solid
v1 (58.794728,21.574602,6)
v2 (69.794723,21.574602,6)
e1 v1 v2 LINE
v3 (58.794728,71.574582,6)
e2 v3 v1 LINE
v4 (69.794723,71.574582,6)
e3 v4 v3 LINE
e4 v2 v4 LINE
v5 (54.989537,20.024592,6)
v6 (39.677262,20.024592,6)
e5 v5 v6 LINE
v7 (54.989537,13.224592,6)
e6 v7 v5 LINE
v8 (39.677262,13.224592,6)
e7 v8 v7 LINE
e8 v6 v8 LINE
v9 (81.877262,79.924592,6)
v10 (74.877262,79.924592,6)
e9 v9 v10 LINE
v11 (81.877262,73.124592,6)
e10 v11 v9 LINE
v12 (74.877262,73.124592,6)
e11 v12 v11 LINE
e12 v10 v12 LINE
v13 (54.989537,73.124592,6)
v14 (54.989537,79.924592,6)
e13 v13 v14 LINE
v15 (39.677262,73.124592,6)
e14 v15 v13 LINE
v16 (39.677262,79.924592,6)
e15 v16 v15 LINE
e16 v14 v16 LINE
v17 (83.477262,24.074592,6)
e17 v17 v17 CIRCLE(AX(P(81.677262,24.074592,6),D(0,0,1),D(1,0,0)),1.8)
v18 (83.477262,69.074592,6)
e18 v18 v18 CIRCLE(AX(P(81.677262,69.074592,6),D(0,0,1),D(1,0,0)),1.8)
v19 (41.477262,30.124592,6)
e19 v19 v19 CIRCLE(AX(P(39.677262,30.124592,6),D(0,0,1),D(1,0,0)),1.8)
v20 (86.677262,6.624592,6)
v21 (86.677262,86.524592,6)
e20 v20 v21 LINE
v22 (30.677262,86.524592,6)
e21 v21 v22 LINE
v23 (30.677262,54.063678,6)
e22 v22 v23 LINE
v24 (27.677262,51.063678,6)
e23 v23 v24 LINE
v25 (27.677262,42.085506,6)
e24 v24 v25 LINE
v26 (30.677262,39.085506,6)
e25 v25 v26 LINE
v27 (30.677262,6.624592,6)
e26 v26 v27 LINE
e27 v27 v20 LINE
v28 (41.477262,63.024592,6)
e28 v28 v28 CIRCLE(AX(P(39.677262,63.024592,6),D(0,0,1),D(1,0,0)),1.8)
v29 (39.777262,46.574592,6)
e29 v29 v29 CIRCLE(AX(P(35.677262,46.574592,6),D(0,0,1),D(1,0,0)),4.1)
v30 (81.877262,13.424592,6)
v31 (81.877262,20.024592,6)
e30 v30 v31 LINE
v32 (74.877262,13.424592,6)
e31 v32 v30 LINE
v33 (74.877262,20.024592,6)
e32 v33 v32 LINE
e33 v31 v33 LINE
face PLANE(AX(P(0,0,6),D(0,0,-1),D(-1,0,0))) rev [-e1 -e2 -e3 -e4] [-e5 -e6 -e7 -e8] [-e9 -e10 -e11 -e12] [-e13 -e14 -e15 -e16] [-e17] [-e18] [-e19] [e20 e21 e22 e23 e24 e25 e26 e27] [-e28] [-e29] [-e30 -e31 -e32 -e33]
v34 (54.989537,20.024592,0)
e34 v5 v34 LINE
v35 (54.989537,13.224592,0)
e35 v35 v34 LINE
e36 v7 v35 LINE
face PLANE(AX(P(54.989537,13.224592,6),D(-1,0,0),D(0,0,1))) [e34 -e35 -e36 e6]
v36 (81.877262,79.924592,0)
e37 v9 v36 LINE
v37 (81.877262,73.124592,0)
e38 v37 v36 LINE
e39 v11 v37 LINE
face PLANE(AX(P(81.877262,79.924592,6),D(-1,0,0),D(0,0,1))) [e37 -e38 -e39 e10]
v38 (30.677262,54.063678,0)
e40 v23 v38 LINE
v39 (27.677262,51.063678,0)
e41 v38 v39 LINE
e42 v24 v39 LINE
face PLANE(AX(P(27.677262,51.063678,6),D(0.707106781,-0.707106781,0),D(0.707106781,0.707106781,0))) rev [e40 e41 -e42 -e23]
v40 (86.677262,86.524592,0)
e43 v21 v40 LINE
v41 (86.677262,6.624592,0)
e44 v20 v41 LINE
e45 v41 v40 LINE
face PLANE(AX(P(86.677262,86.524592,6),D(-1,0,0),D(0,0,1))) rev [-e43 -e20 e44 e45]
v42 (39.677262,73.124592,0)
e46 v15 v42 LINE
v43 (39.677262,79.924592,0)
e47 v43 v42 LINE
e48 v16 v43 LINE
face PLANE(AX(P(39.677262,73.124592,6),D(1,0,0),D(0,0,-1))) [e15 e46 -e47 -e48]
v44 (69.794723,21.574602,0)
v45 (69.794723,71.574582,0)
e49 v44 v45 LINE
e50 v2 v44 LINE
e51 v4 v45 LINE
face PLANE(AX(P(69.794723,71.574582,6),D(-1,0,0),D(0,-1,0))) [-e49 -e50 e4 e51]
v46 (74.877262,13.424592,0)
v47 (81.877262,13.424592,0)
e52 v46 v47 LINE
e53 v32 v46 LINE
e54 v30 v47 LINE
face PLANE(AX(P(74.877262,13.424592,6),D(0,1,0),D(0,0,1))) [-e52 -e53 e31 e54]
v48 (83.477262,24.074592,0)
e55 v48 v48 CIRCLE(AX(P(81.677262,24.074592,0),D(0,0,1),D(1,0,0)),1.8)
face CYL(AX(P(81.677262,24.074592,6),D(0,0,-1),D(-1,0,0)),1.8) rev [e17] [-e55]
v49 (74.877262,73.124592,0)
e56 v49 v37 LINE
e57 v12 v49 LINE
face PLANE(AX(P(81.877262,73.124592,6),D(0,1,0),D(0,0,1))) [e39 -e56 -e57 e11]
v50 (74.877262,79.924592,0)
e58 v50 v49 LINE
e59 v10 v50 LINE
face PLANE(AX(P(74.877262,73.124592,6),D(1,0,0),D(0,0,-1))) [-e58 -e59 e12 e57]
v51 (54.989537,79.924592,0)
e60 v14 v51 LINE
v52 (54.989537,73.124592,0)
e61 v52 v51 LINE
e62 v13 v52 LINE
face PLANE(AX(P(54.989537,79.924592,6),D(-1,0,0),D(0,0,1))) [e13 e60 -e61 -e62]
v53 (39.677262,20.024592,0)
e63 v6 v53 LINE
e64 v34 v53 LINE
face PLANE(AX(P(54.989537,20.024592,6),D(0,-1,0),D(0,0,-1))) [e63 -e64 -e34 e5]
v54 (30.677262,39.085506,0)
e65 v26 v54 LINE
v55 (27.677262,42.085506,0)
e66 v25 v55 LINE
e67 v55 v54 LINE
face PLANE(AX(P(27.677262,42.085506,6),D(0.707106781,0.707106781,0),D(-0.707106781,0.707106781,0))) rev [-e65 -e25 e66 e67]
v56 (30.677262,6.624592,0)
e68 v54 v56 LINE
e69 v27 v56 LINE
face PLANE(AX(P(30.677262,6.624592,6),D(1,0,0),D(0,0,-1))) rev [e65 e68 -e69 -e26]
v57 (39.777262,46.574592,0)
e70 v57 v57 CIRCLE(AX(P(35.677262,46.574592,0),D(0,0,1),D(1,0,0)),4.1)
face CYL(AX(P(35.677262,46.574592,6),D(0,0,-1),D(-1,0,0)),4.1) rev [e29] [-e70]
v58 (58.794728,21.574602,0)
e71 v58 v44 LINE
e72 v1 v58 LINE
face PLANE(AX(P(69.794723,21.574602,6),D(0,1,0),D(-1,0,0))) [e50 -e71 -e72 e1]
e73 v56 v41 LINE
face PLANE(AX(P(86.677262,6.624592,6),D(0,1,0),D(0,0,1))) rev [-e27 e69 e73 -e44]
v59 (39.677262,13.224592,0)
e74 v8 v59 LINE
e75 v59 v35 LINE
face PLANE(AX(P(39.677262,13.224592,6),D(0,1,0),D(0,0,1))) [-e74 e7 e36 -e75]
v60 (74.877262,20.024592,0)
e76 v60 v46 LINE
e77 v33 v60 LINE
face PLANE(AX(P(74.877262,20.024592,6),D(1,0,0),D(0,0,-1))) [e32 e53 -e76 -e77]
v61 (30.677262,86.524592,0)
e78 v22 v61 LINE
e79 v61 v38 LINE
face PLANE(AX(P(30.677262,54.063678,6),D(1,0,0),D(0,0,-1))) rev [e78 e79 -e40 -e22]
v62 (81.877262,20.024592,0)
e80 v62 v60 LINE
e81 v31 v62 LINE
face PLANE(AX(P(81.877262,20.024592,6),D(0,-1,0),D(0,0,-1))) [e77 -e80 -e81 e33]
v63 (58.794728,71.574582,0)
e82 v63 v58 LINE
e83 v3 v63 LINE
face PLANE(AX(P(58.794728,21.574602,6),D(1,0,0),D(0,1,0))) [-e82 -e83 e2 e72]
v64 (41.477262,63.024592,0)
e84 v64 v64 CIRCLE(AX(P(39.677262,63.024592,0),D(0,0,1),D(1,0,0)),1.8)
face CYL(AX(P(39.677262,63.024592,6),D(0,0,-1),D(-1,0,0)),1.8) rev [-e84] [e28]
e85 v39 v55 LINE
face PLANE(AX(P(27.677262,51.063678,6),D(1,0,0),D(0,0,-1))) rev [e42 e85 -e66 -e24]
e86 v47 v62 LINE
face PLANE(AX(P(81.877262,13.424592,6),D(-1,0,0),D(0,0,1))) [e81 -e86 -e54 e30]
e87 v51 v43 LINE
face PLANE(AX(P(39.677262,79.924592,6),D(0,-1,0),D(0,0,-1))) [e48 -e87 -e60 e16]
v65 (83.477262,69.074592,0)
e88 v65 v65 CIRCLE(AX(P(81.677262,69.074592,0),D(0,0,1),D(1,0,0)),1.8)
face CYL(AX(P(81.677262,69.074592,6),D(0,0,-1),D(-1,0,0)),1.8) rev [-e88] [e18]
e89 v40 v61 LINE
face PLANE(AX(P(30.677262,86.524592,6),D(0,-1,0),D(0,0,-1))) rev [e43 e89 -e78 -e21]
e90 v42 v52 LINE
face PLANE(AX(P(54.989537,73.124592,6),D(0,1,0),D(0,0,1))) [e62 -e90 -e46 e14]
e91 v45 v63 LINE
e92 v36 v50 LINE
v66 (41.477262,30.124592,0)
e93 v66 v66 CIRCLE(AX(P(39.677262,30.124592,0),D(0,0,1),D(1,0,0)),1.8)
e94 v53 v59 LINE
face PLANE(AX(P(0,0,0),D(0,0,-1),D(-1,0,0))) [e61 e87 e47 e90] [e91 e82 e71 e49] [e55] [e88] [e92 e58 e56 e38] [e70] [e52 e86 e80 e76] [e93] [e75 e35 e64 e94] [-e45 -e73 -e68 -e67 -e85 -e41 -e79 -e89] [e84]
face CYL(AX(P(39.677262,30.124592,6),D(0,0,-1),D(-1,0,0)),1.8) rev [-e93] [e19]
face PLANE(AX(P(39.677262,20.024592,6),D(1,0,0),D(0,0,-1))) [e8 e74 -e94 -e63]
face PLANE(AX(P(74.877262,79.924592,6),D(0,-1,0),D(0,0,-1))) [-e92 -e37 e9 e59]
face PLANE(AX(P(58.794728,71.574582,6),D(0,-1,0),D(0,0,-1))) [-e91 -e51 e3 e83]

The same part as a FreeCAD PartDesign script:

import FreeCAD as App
import Part
import Sketcher

V = App.Vector

doc = App.newDocument("Part")
body = doc.addObject("PartDesign::Body", "Body")

sketch1 = doc.addObject("Sketcher::SketchObject", "Sketch")
body.addObject(sketch1)
sketch1.AttachmentSupport = (doc.XY_Plane, [""])
sketch1.MapMode = "FlatFace"
sketch1.addGeometry([
    Part.LineSegment(V(30.677262, 39.085506, 0), V(30.677262, 6.624592, 0)),
    Part.LineSegment(V(30.677262, 6.624592, 0), V(86.677262, 6.624592, 0)),
    Part.LineSegment(V(86.677262, 6.624592, 0), V(86.677262, 86.524592, 0)),
    Part.LineSegment(V(86.677262, 86.524592, 0), V(30.677262, 86.524592, 0)),
    Part.LineSegment(V(30.677262, 86.524592, 0), V(30.677262, 54.063678, 0)),
    Part.LineSegment(V(30.677262, 54.063678, 0), V(27.677262, 51.063678, 0)),
    Part.LineSegment(V(27.677262, 51.063678, 0), V(27.677262, 42.085506, 0)),
    Part.LineSegment(V(27.677262, 42.085506, 0), V(30.677262, 39.085506, 0)),
    Part.LineSegment(V(74.877262, 13.424592, 0), V(74.877262, 20.024592, 0)),
    Part.LineSegment(V(74.877262, 20.024592, 0), V(81.877262, 20.024592, 0)),
    Part.LineSegment(V(81.877262, 20.024592, 0), V(81.877262, 13.424592, 0)),
    Part.LineSegment(V(81.877262, 13.424592, 0), V(74.877262, 13.424592, 0)),
    Part.Circle(V(81.677262, 24.074592, 0), V(0, 0, 1), 1.8),
    Part.LineSegment(V(39.677262, 13.224592, 0), V(39.677262, 20.024592, 0)),
    Part.LineSegment(V(39.677262, 20.024592, 0), V(54.989537, 20.024592, 0)),
    Part.LineSegment(V(54.989537, 20.024592, 0), V(54.989537, 13.224592, 0)),
    Part.LineSegment(V(54.989537, 13.224592, 0), V(39.677262, 13.224592, 0)),
    Part.Circle(V(39.677262, 30.124592, 0), V(0, 0, 1), 1.8),
    Part.LineSegment(V(58.794728, 21.574602, 0), V(58.794728, 71.574582, 0)),
    Part.LineSegment(V(58.794728, 71.574582, 0), V(69.794723, 71.574582, 0)),
    Part.LineSegment(V(69.794723, 71.574582, 0), V(69.794723, 21.574602, 0)),
    Part.LineSegment(V(69.794723, 21.574602, 0), V(58.794728, 21.574602, 0)),
    Part.Circle(V(81.677262, 69.074592, 0), V(0, 0, 1), 1.8),
    Part.LineSegment(V(74.877262, 73.124592, 0), V(74.877262, 79.924592, 0)),
    Part.LineSegment(V(74.877262, 79.924592, 0), V(81.877262, 79.924592, 0)),
    Part.LineSegment(V(81.877262, 79.924592, 0), V(81.877262, 73.124592, 0)),
    Part.LineSegment(V(81.877262, 73.124592, 0), V(74.877262, 73.124592, 0)),
    Part.Circle(V(35.677262, 46.574592, 0), V(0, 0, 1), 4.1),
    Part.Circle(V(39.677262, 63.024592, 0), V(0, 0, 1), 1.8),
    Part.LineSegment(V(39.677262, 73.124592, 0), V(39.677262, 79.924592, 0)),
    Part.LineSegment(V(39.677262, 79.924592, 0), V(54.989537, 79.924592, 0)),
    Part.LineSegment(V(54.989537, 79.924592, 0), V(54.989537, 73.124592, 0)),
    Part.LineSegment(V(54.989537, 73.124592, 0), V(39.677262, 73.124592, 0)),
], False)
sketch1.addConstraint([
    Sketcher.Constraint("Coincident", 0, 2, 1, 1),
    Sketcher.Constraint("Coincident", 1, 2, 2, 1),
    Sketcher.Constraint("Coincident", 2, 2, 3, 1),
    Sketcher.Constraint("Coincident", 3, 2, 4, 1),
    Sketcher.Constraint("Coincident", 4, 2, 5, 1),
    Sketcher.Constraint("Coincident", 5, 2, 6, 1),
    Sketcher.Constraint("Coincident", 6, 2, 7, 1),
    Sketcher.Constraint("Coincident", 7, 2, 0, 1),
    Sketcher.Constraint("Coincident", 8, 2, 9, 1),
    Sketcher.Constraint("Coincident", 9, 2, 10, 1),
    Sketcher.Constraint("Coincident", 10, 2, 11, 1),
    Sketcher.Constraint("Coincident", 11, 2, 8, 1),
    Sketcher.Constraint("Coincident", 13, 2, 14, 1),
    Sketcher.Constraint("Coincident", 14, 2, 15, 1),
    Sketcher.Constraint("Coincident", 15, 2, 16, 1),
    Sketcher.Constraint("Coincident", 16, 2, 13, 1),
    Sketcher.Constraint("Coincident", 18, 2, 19, 1),
    Sketcher.Constraint("Coincident", 19, 2, 20, 1),
    Sketcher.Constraint("Coincident", 20, 2, 21, 1),
    Sketcher.Constraint("Coincident", 21, 2, 18, 1),
    Sketcher.Constraint("Coincident", 23, 2, 24, 1),
    Sketcher.Constraint("Coincident", 24, 2, 25, 1),
    Sketcher.Constraint("Coincident", 25, 2, 26, 1),
    Sketcher.Constraint("Coincident", 26, 2, 23, 1),
    Sketcher.Constraint("Coincident", 29, 2, 30, 1),
    Sketcher.Constraint("Coincident", 30, 2, 31, 1),
    Sketcher.Constraint("Coincident", 31, 2, 32, 1),
    Sketcher.Constraint("Coincident", 32, 2, 29, 1),
    Sketcher.Constraint("Vertical", 0),
    Sketcher.Constraint("Horizontal", 1),
    Sketcher.Constraint("Vertical", 2),
    Sketcher.Constraint("Horizontal", 3),
    Sketcher.Constraint("Vertical", 4),
    Sketcher.Constraint("Vertical", 6),
    Sketcher.Constraint("Vertical", 8),
    Sketcher.Constraint("Horizontal", 9),
    Sketcher.Constraint("Vertical", 10),
    Sketcher.Constraint("Horizontal", 11),
    Sketcher.Constraint("Vertical", 13),
    Sketcher.Constraint("Horizontal", 14),
    Sketcher.Constraint("Vertical", 15),
    Sketcher.Constraint("Horizontal", 16),
    Sketcher.Constraint("Vertical", 18),
    Sketcher.Constraint("Horizontal", 19),
    Sketcher.Constraint("Vertical", 20),
    Sketcher.Constraint("Horizontal", 21),
    Sketcher.Constraint("Vertical", 23),
    Sketcher.Constraint("Horizontal", 24),
    Sketcher.Constraint("Vertical", 25),
    Sketcher.Constraint("Horizontal", 26),
    Sketcher.Constraint("Vertical", 29),
    Sketcher.Constraint("Horizontal", 30),
    Sketcher.Constraint("Vertical", 31),
    Sketcher.Constraint("Horizontal", 32),
    Sketcher.Constraint("Equal", 12, 17),
    Sketcher.Constraint("Equal", 17, 22),
    Sketcher.Constraint("Equal", 22, 28),
    Sketcher.Constraint("Perpendicular", 5, 7),
    Sketcher.Constraint("Horizontal", 9, 2, 13, 2),
    Sketcher.Constraint("Horizontal", 24, 2, 29, 2),
    Sketcher.Constraint("Horizontal", 26, 2, 31, 2),
    Sketcher.Constraint("Vertical", 12, 3, 22, 3),
    Sketcher.Constraint("Vertical", 17, 3, 28, 3),
    Sketcher.Constraint("Vertical", 0, 2, 3, 2),
    Sketcher.Constraint("Vertical", 28, 3, 13, 2),
    Sketcher.Constraint("Vertical", 11, 2, 23, 2),
    Sketcher.Constraint("Vertical", 10, 2, 24, 2),
    Sketcher.Constraint("Vertical", 16, 2, 29, 2),
    Sketcher.Constraint("Vertical", 15, 2, 30, 2),
    Sketcher.Constraint("Equal", 0, 4),
    Sketcher.Constraint("Equal", 15, 23),
    Sketcher.Constraint("Equal", 5, 7),
    Sketcher.Constraint("Diameter", 12, 3.6),
    Sketcher.Constraint("Diameter", 27, 8.2),
    Sketcher.Constraint("DistanceX", 1, 1, 1, 2, 56.0),
    Sketcher.Constraint("DistanceX", 9, 1, 9, 2, 7.0),
    Sketcher.Constraint("DistanceY", 2, 1, 2, 2, 79.9),
    Sketcher.Constraint("DistanceY", 8, 1, 8, 2, 6.6),
    Sketcher.Constraint("DistanceY", 13, 1, 13, 2, 6.8),
    Sketcher.Constraint("DistanceX", 17, 3, 12, 3, 42.0),
    Sketcher.Constraint("DistanceY", 12, 3, 22, 3, 45.0),
    Sketcher.Constraint("DistanceX", 27, 3, 17, 3, 4.0),
    Sketcher.Constraint("DistanceX", 0, 2, 17, 3, 9.0),
    Sketcher.Constraint("DistanceX", 5, 2, 4, 2, 3.0),
    Sketcher.Constraint("DistanceY", 12, 3, 27, 3, 22.5),
    Sketcher.Constraint("DistanceY", 17, 3, 28, 3, 32.9),
    Sketcher.Constraint("DistanceY", 0, 2, 17, 3, 23.5),
    Sketcher.Constraint("DistanceX", 8, 2, 12, 3, 6.8),
    Sketcher.Constraint("DistanceY", 1, 2, 8, 2, 13.4),
    Sketcher.Constraint("DistanceY", 23, 2, 2, 2, 6.6),
    Sketcher.Constraint("DistanceY", 12, 3, 17, 3, 6.05),
    Sketcher.Constraint("DistanceY", 18, 1, 18, 2, 49.99998),
    Sketcher.Constraint("DistanceX", 14, 1, 14, 2, 15.312275),
    Sketcher.Constraint("DistanceX", 19, 1, 19, 2, 10.999995),
    Sketcher.Constraint("DistanceY", 0, 2, 0, 1, 32.460914),
    Sketcher.Constraint("DistanceX", -1, 1, 12, 3, 81.677262),
    Sketcher.Constraint("DistanceY", -1, 1, 12, 3, 24.074592),
    Sketcher.Constraint("DistanceY", -1, 1, 18, 2, 71.574582),
    Sketcher.Constraint("DistanceX", 19, 2, 22, 3, 11.882539),
])
pad1 = doc.addObject("PartDesign::Pad", "Pad")
body.addObject(pad1)
pad1.Profile = sketch1
pad1.Length = 6

doc.recompute()
